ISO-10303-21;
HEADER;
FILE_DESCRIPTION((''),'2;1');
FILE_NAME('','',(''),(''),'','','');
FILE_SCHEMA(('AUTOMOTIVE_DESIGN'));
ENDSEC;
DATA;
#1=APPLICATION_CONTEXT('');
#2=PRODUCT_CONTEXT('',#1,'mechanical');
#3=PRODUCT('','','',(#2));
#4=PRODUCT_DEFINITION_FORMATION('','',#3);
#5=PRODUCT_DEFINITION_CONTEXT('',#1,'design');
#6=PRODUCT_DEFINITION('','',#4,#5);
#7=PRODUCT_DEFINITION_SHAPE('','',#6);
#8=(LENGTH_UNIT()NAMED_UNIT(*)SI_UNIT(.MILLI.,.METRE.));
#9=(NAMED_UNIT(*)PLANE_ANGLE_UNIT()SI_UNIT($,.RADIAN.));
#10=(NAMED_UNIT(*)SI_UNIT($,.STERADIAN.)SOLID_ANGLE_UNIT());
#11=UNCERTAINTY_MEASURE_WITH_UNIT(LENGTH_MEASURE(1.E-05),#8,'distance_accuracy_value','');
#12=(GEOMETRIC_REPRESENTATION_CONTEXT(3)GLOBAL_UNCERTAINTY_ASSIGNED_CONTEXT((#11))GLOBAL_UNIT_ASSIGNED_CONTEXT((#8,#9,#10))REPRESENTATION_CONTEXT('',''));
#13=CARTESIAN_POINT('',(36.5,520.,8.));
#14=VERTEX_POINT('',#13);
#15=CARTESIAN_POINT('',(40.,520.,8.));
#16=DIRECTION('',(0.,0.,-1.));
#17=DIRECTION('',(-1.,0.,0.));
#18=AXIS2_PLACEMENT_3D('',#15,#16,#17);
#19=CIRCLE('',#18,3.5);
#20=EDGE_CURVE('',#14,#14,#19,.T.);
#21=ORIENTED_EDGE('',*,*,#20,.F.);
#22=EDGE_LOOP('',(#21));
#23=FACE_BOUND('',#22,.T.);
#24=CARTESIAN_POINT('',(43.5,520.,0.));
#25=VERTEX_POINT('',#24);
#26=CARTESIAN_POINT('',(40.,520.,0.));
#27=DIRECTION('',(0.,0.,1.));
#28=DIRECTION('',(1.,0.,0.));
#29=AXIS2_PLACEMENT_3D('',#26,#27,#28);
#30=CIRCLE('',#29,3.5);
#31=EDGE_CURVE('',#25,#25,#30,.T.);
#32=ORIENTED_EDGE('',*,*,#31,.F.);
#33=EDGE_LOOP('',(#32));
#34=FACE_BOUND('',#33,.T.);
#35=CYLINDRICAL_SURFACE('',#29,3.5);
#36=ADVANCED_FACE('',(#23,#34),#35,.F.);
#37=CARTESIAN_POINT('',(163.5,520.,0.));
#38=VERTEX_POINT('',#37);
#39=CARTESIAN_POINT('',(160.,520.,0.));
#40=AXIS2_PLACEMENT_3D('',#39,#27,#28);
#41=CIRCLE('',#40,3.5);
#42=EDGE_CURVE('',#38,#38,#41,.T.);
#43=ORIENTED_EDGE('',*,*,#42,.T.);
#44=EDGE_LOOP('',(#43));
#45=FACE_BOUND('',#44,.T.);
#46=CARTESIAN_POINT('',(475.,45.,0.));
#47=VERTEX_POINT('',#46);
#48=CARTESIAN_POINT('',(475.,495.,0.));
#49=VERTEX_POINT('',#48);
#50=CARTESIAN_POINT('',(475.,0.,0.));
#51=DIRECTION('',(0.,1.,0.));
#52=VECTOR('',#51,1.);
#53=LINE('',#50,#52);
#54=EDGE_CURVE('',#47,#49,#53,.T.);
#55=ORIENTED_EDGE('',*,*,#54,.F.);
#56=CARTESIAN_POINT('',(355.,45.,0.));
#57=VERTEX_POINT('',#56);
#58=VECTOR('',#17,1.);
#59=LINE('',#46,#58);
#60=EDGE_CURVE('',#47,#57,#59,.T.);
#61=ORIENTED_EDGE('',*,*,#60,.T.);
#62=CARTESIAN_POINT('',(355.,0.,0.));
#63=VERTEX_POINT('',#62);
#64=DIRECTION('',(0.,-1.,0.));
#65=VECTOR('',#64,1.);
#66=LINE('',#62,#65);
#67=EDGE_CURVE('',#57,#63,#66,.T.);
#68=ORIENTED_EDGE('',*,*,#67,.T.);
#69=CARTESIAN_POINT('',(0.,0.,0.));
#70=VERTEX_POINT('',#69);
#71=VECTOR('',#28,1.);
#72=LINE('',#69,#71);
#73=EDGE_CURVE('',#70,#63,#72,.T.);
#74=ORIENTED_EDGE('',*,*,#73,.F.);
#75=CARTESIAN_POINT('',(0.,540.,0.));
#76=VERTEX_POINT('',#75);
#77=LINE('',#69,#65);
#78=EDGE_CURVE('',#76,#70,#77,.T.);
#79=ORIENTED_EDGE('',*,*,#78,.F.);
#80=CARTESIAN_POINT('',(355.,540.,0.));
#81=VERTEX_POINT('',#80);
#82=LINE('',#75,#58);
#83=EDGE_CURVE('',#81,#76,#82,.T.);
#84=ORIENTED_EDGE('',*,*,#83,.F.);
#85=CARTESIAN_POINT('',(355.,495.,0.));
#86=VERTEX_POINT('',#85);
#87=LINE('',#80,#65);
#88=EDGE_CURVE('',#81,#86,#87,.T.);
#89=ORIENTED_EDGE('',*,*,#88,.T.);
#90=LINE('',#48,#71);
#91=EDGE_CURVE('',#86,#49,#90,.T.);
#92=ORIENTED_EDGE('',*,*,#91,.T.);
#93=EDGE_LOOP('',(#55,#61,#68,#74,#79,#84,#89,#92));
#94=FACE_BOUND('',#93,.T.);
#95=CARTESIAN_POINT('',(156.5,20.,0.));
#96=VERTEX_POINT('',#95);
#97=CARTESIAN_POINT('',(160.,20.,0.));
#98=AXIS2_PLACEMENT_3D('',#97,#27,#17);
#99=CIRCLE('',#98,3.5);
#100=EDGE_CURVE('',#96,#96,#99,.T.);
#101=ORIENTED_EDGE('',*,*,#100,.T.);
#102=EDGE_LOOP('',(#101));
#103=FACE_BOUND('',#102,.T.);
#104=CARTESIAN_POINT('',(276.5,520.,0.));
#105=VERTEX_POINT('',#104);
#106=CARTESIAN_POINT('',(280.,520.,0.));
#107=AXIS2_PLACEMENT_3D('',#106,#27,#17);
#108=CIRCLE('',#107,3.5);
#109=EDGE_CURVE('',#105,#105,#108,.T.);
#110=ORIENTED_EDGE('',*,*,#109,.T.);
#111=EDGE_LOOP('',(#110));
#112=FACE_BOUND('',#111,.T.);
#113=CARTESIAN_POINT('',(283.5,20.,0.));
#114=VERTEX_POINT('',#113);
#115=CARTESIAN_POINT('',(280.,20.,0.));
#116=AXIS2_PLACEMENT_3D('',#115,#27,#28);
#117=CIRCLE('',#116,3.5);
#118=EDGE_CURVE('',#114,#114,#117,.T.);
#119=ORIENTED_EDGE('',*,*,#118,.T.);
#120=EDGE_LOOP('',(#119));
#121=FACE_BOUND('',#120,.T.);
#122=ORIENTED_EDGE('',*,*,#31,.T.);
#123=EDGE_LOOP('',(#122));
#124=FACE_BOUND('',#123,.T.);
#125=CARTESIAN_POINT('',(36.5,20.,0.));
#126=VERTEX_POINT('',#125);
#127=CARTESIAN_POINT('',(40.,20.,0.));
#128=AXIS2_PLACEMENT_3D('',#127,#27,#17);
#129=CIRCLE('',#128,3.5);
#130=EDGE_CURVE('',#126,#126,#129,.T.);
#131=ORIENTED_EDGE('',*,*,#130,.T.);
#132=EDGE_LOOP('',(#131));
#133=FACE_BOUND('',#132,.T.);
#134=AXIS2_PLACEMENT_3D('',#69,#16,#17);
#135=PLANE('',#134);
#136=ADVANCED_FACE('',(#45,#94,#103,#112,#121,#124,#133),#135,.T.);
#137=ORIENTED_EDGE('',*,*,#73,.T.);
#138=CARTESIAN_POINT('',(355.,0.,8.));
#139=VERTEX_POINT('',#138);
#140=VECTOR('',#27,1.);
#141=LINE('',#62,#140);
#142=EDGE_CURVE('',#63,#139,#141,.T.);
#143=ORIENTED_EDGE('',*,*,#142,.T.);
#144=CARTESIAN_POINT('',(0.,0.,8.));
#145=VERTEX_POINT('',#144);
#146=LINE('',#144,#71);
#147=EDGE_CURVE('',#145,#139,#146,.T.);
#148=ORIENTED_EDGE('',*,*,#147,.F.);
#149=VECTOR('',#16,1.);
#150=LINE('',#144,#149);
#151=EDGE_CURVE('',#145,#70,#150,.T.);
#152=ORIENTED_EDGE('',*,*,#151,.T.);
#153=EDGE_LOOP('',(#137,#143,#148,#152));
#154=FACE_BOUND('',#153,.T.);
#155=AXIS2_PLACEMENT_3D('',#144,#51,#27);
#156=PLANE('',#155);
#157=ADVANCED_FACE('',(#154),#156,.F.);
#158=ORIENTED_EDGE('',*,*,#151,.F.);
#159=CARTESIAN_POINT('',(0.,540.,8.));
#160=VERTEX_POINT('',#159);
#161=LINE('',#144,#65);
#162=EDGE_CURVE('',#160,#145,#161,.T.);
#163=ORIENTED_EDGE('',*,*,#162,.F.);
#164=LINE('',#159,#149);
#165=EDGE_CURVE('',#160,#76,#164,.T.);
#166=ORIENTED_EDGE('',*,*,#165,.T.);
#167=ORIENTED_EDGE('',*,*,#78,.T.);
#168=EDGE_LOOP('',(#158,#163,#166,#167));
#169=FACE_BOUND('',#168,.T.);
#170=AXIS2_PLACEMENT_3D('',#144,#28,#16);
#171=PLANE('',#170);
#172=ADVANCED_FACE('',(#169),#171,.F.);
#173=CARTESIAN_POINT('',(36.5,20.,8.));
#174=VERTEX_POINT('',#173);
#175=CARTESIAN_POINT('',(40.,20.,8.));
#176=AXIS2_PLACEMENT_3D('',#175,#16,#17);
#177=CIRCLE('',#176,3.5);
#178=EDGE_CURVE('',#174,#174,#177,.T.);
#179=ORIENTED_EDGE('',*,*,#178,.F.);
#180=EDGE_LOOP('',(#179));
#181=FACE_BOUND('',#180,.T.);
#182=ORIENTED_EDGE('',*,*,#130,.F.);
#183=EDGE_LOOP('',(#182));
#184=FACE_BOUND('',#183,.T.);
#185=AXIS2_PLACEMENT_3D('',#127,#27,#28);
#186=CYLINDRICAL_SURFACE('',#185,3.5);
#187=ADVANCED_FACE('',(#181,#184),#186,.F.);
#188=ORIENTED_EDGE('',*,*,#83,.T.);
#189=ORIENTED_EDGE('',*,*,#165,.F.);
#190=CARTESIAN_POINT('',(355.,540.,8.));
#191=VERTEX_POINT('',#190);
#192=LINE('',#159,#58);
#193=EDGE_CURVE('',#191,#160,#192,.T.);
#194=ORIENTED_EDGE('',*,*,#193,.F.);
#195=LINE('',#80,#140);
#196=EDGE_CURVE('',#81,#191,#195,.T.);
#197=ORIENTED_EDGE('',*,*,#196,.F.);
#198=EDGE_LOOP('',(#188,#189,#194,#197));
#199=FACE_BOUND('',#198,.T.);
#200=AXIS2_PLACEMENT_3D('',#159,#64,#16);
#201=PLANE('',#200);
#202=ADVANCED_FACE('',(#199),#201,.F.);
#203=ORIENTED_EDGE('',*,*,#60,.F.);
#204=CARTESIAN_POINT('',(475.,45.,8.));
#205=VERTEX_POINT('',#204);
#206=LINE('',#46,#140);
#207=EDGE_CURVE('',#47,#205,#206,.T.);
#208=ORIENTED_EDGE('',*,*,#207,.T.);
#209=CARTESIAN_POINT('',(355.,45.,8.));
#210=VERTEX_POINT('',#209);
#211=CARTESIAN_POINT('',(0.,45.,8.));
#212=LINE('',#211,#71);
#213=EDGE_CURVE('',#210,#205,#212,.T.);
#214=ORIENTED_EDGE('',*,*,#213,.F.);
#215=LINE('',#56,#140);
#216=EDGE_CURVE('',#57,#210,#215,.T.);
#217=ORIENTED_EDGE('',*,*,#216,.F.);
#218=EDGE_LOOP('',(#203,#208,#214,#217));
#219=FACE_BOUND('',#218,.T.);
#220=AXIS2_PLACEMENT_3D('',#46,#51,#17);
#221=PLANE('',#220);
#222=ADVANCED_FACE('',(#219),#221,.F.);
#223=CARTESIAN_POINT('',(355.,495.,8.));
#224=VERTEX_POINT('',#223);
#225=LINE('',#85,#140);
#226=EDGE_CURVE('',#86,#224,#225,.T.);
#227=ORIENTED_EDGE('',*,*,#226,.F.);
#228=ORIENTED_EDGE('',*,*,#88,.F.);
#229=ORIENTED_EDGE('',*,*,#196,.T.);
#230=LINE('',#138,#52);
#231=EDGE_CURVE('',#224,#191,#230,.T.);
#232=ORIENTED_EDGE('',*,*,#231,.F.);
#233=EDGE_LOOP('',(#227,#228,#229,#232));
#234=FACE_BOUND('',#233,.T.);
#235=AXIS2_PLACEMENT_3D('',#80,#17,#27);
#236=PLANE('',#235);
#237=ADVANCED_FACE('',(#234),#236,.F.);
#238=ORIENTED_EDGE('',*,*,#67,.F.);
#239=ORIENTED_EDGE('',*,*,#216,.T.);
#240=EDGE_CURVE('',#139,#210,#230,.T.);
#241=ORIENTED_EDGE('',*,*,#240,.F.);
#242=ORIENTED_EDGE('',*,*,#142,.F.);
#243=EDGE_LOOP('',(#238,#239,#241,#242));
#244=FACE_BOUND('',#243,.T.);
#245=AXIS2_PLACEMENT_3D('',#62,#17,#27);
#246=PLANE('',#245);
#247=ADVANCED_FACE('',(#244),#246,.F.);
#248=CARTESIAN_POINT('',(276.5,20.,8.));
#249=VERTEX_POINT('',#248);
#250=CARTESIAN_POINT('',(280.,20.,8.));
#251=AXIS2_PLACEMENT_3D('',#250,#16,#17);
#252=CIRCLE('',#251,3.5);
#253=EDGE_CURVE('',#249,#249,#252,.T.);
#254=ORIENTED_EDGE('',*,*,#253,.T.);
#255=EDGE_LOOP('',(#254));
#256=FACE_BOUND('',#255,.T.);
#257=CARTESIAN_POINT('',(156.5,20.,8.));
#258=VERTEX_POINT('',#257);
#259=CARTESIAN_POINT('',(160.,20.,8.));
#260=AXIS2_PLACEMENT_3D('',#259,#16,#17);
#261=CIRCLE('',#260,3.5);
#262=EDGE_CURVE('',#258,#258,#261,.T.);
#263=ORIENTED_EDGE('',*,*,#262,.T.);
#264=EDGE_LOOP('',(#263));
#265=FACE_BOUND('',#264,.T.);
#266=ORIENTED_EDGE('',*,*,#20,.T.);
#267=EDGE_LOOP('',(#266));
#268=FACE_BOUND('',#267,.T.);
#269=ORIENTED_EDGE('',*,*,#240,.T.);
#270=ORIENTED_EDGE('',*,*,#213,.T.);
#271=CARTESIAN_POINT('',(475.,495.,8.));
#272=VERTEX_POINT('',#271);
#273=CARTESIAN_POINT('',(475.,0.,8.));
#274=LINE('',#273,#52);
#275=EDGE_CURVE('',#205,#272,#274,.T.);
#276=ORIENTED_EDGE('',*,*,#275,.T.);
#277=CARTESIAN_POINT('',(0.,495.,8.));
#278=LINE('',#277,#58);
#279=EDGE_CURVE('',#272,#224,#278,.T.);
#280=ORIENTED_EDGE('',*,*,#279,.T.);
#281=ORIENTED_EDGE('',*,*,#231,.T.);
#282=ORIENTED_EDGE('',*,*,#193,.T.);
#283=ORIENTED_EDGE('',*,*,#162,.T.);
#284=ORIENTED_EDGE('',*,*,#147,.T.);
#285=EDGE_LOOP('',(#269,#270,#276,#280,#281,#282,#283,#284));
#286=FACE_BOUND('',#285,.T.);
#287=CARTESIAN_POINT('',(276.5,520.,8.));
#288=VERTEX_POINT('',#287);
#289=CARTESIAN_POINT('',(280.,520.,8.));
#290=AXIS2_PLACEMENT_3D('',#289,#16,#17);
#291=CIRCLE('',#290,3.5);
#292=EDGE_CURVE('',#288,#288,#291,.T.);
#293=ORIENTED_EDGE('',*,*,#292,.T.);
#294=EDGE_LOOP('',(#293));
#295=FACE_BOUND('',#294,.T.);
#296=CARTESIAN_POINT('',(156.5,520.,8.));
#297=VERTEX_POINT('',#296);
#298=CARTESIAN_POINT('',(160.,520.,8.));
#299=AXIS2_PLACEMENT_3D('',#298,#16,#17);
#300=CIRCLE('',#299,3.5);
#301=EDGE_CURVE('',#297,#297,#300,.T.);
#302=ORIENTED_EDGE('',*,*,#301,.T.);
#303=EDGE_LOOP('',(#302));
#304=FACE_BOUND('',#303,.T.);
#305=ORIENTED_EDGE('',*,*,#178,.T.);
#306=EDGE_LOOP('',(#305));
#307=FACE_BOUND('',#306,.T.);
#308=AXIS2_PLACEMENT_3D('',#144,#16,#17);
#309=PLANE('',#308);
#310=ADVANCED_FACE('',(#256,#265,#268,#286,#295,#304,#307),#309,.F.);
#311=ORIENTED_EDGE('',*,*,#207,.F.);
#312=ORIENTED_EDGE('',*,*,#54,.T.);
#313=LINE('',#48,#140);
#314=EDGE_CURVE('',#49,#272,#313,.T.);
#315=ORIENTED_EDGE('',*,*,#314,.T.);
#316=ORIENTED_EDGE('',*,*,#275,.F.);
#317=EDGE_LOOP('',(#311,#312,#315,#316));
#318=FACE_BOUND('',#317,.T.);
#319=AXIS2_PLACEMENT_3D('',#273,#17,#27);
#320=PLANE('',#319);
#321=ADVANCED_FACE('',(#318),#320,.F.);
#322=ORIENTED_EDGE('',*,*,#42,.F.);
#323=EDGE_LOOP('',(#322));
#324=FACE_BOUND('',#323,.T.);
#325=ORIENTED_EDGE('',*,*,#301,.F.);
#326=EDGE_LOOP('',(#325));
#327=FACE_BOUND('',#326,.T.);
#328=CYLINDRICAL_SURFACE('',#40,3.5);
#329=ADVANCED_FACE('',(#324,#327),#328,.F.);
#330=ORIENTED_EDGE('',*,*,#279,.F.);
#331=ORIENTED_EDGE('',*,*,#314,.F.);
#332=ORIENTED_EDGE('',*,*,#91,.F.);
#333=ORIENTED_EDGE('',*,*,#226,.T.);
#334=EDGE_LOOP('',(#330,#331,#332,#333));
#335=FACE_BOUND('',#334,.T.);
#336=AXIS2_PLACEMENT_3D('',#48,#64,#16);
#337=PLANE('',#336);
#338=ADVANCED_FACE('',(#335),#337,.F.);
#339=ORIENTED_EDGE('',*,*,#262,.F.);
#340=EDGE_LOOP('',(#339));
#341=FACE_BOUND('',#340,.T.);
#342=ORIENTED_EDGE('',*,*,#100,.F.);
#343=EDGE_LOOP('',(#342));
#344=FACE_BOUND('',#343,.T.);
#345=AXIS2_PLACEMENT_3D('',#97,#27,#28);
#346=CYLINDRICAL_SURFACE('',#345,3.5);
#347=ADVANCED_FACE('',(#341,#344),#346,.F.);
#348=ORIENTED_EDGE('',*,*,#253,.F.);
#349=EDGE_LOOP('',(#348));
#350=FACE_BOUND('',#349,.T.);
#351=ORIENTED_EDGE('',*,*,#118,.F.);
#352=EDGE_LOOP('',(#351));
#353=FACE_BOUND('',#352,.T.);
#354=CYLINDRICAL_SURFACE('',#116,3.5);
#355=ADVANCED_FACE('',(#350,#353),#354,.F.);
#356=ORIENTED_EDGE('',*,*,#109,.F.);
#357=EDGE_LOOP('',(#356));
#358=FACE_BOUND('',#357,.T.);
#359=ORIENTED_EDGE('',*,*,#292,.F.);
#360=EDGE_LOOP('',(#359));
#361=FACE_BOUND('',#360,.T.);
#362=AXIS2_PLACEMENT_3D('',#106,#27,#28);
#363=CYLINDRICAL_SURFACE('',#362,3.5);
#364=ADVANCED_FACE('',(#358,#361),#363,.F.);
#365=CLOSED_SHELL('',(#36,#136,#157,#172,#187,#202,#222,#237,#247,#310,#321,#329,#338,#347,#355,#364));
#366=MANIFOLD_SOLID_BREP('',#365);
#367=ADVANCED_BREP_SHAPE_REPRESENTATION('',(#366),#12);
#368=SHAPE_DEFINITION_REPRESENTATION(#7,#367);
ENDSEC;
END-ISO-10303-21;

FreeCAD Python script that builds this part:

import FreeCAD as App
import Part
import Sketcher

doc = App.newDocument("Part")
body = doc.addObject("PartDesign::Body", "Body")

sketch1 = body.newObject("Sketcher::SketchObject", "Sketch")
sketch1.AttachmentSupport = (doc.getObject("XY_Plane"), [""])
sketch1.MapMode = "FlatFace"
sketch1.addGeometry([
    Part.LineSegment(App.Vector(0, 540, 0), App.Vector(0, 0, 0)),
    Part.LineSegment(App.Vector(0, 0, 0), App.Vector(475, 0, 0)),
    Part.LineSegment(App.Vector(475, 0, 0), App.Vector(475, 540, 0)),
    Part.LineSegment(App.Vector(475, 540, 0), App.Vector(0, 540, 0)),
], False)
sketch1.addConstraint([
    Sketcher.Constraint("Coincident", 0, 2, 1, 1),
    Sketcher.Constraint("Coincident", 1, 2, 2, 1),
    Sketcher.Constraint("Coincident", 2, 2, 3, 1),
    Sketcher.Constraint("Coincident", 3, 2, 0, 1),
    Sketcher.Constraint("Vertical", 0),
    Sketcher.Constraint("Horizontal", 1),
    Sketcher.Constraint("Vertical", 2),
    Sketcher.Constraint("Horizontal", 3),
    Sketcher.Constraint("Coincident", 0, 2, -1, 1),
    Sketcher.Constraint("DistanceX", 1, 1, 1, 2, 475.0),
    Sketcher.Constraint("DistanceY", 0, 2, 0, 1, 540.0),
])
pad1 = body.newObject("PartDesign::Pad", "Pad")
pad1.Profile = sketch1
pad1.Length = 8

sketch2 = body.newObject("Sketcher::SketchObject", "Sketch001")
sketch2.AttachmentSupport = (doc.getObject("XY_Plane"), [""])
sketch2.MapMode = "FlatFace"
sketch2.AttachmentOffset = App.Placement(App.Vector(0, 0, 8), App.Rotation())
sketch2.addGeometry([
    Part.Circle(App.Vector(160, 520, 0), App.Vector(0, 0, 1), 3.5),
    Part.Circle(App.Vector(40, 520, 0), App.Vector(0, 0, 1), 3.5),
    Part.Circle(App.Vector(400, 520, 0), App.Vector(0, 0, 1), 3.5),
    Part.Circle(App.Vector(280, 520, 0), App.Vector(0, 0, 1), 3.5),
    Part.Circle(App.Vector(280, 20, 0), App.Vector(0, 0, 1), 3.5),
    Part.Circle(App.Vector(400, 20, 0), App.Vector(0, 0, 1), 3.5),
    Part.Circle(App.Vector(40, 20, 0), App.Vector(0, 0, 1), 3.5),
    Part.Circle(App.Vector(160, 20, 0), App.Vector(0, 0, 1), 3.5),
], False)
sketch2.addConstraint([
    Sketcher.Constraint("Equal", 0, 1),
    Sketcher.Constraint("Equal", 1, 2),
    Sketcher.Constraint("Equal", 2, 3),
    Sketcher.Constraint("Equal", 3, 4),
    Sketcher.Constraint("Equal", 4, 5),
    Sketcher.Constraint("Equal", 5, 6),
    Sketcher.Constraint("Equal", 6, 7),
    Sketcher.Constraint("Horizontal", 0, 3, 1, 3),
    Sketcher.Constraint("Horizontal", 1, 3, 2, 3),
    Sketcher.Constraint("Horizontal", 2, 3, 3, 3),
    Sketcher.Constraint("Horizontal", 4, 3, 5, 3),
    Sketcher.Constraint("Horizontal", 5, 3, 6, 3),
    Sketcher.Constraint("Horizontal", 6, 3, 7, 3),
    Sketcher.Constraint("Vertical", 3, 3, 4, 3),
    Sketcher.Constraint("Vertical", 2, 3, 5, 3),
    Sketcher.Constraint("Vertical", 1, 3, 6, 3),
    Sketcher.Constraint("Vertical", 0, 3, 7, 3),
    Sketcher.Constraint("Diameter", 0, 7.0),
    Sketcher.Constraint("DistanceX", -1, 1, 0, 3, 160.0),
    Sketcher.Constraint("DistanceY", -1, 1, 0, 3, 520.0),
    Sketcher.Constraint("DistanceX", -1, 1, 1, 3, 40.0),
    Sketcher.Constraint("DistanceX", -1, 1, 2, 3, 400.0),
    Sketcher.Constraint("DistanceX", -1, 1, 3, 3, 280.0),
    Sketcher.Constraint("DistanceY", -1, 1, 4, 3, 20.0),
])
pocket1 = body.newObject("PartDesign::Pocket", "Pocket")
pocket1.Profile = sketch2
pocket1.Type = "ThroughAll"
pocket1.Midplane = True

sketch3 = body.newObject("Sketcher::SketchObject", "Sketch002")
sketch3.AttachmentSupport = (doc.getObject("XY_Plane"), [""])
sketch3.MapMode = "FlatFace"
sketch3.AttachmentOffset = App.Placement(App.Vector(0, 0, 8), App.Rotation())
sketch3.addGeometry([
    Part.LineSegment(App.Vector(355, 540, 0), App.Vector(355, 495, 0)),
    Part.LineSegment(App.Vector(355, 495, 0), App.Vector(475, 495, 0)),
    Part.LineSegment(App.Vector(475, 495, 0), App.Vector(475, 540, 0)),
    Part.LineSegment(App.Vector(475, 540, 0), App.Vector(355, 540, 0)),
    Part.LineSegment(App.Vector(355, 45, 0), App.Vector(355, 0, 0)),
    Part.LineSegment(App.Vector(355, 0, 0), App.Vector(475, 0, 0)),
    Part.LineSegment(App.Vector(475, 0, 0), App.Vector(475, 45, 0)),
    Part.LineSegment(App.Vector(475, 45, 0), App.Vector(355, 45, 0)),
], False)
sketch3.addConstraint([
    Sketcher.Constraint("Coincident", 0, 2, 1, 1),
    Sketcher.Constraint("Coincident", 1, 2, 2, 1),
    Sketcher.Constraint("Coincident", 2, 2, 3, 1),
    Sketcher.Constraint("Coincident", 3, 2, 0, 1),
    Sketcher.Constraint("Coincident", 4, 2, 5, 1),
    Sketcher.Constraint("Coincident", 5, 2, 6, 1),
    Sketcher.Constraint("Coincident", 6, 2, 7, 1),
    Sketcher.Constraint("Coincident", 7, 2, 4, 1),
    Sketcher.Constraint("Vertical", 0),
    Sketcher.Constraint("Horizontal", 1),
    Sketcher.Constraint("Vertical", 2),
    Sketcher.Constraint("Horizontal", 3),
    Sketcher.Constraint("Vertical", 4),
    Sketcher.Constraint("Horizontal", 5),
    Sketcher.Constraint("Vertical", 6),
    Sketcher.Constraint("Horizontal", 7),
    Sketcher.Constraint("PointOnObject", 4, 2, -1),
    Sketcher.Constraint("Vertical", 3, 2, 4, 2),
    Sketcher.Constraint("Vertical", 2, 2, 5, 2),
    Sketcher.Constraint("Equal", 2, 4),
    Sketcher.Constraint("DistanceX", 1, 1, 1, 2, 120.0),
    Sketcher.Constraint("DistanceY", 0, 2, 0, 1, 45.0),
    Sketcher.Constraint("DistanceX", -1, 1, 0, 2, 355.0),
    Sketcher.Constraint("DistanceY", -1, 1, 0, 2, 495.0),
])
pocket2 = body.newObject("PartDesign::Pocket", "Pocket001")
pocket2.Profile = sketch3
pocket2.Type = "ThroughAll"
pocket2.Midplane = True

doc.recompute()
